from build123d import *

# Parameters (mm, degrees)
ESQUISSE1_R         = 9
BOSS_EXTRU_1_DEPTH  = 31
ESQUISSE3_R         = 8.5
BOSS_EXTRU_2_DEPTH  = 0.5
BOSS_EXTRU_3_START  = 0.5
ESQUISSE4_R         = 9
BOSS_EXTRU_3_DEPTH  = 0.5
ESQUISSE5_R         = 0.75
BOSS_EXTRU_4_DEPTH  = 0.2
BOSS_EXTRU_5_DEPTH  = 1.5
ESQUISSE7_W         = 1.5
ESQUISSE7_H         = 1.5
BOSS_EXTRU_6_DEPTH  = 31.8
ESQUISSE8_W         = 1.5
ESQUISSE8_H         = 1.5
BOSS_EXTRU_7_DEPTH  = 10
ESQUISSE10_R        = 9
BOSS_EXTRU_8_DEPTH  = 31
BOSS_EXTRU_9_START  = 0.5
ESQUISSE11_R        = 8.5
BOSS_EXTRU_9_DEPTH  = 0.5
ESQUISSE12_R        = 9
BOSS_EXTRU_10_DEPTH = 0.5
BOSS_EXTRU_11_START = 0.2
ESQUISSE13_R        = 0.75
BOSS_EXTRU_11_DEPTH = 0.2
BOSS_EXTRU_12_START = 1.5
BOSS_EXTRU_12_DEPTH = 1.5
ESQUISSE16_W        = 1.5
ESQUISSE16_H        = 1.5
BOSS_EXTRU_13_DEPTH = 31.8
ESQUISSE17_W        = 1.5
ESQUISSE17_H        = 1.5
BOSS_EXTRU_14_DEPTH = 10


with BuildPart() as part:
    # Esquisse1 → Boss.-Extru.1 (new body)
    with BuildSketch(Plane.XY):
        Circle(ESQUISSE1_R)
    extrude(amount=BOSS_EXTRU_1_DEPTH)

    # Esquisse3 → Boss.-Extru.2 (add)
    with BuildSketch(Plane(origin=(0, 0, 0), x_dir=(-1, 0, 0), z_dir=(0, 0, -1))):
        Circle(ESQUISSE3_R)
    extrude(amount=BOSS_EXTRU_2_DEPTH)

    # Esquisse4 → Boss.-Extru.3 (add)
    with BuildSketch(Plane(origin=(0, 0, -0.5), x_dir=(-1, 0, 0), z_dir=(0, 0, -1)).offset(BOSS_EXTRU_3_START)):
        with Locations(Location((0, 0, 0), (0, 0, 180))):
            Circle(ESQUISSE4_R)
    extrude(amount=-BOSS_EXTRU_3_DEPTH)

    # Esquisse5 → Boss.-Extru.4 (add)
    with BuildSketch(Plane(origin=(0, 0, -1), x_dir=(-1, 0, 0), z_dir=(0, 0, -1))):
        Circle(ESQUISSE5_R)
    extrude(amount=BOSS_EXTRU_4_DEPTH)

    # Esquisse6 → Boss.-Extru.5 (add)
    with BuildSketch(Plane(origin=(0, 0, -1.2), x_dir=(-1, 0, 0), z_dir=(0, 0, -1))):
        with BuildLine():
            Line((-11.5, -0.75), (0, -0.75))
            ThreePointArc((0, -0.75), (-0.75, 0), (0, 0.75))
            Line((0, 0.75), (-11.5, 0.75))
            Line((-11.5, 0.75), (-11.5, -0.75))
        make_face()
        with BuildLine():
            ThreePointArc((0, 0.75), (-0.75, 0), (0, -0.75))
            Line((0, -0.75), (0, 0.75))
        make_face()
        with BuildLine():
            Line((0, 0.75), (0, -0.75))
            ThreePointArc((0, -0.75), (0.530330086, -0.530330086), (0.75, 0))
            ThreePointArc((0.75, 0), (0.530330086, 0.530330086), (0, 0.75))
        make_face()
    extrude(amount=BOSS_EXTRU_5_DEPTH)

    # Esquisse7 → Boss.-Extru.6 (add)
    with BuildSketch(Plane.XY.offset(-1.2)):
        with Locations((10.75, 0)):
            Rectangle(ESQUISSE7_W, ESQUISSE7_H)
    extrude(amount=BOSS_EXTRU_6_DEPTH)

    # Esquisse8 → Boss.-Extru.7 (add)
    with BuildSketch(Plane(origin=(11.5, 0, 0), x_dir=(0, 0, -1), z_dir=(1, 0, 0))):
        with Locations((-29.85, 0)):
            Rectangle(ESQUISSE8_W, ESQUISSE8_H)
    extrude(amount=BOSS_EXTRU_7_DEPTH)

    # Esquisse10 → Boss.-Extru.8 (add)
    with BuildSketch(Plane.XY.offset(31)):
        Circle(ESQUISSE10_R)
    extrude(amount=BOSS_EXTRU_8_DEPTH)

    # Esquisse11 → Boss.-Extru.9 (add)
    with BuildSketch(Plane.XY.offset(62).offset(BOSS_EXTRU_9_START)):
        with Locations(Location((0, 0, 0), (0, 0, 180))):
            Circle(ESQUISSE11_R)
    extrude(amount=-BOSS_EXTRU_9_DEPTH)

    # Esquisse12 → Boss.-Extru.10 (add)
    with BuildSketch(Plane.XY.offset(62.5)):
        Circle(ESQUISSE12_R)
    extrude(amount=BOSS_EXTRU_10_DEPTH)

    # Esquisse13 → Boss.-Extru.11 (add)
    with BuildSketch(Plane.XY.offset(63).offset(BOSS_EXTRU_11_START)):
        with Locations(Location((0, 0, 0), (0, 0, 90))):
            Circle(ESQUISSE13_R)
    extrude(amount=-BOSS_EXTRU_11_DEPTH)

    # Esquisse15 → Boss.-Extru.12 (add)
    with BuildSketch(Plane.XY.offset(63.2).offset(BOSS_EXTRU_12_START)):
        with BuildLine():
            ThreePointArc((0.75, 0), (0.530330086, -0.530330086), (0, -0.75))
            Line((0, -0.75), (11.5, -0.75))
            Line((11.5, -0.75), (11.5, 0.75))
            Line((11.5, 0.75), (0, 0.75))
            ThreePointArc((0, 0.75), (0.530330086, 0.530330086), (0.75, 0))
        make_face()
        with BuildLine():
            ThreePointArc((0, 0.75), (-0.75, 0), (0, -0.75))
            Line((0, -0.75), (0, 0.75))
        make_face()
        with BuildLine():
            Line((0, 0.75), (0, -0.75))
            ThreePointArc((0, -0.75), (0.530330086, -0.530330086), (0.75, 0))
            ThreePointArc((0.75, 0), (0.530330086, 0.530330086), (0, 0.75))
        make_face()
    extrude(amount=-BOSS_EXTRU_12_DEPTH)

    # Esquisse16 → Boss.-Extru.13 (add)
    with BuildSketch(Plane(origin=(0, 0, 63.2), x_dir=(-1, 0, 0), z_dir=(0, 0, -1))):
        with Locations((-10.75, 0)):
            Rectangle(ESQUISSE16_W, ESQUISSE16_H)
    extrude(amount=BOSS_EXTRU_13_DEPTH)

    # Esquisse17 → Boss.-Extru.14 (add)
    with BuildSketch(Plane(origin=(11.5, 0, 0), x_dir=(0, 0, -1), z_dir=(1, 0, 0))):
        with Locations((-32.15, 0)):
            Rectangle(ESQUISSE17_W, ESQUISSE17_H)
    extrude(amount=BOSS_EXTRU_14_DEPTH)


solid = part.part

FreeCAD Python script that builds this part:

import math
import FreeCAD as App
import Part
import Sketcher
Q = App.Units.Quantity


def add_polygon(sketch, points):
    """Adds a closed chain of lines whose ends are joined by coincident constraints."""
    first, n = sketch.GeometryCount, len(points)
    for a, b in zip(points, points[1:] + points[:1]):
        sketch.addGeometry(Part.LineSegment(App.Vector(*a, 0), App.Vector(*b, 0)), False)
    for i in range(n):
        sketch.addConstraint(Sketcher.Constraint("Coincident", first + i, 2, first + (i + 1) % n, 1))

doc = App.newDocument("Part")
body = doc.addObject("PartDesign::Body", "Body")

# Sketch on XY plane
sketch1 = body.newObject("Sketcher::SketchObject", "Sketch")
sketch1.AttachmentSupport = (doc.getObject("XY_Plane"), [""])
sketch1.MapMode = "FlatFace"
sketch1.addGeometry(Part.Circle(App.Vector(0, 0, 0), App.Vector(0, 0, 1), 9), False)
sketch1.addConstraint([
    Sketcher.Constraint("Coincident", 0, 3, -1, 1),
    Sketcher.Constraint("Diameter", 0, Q("18 mm")),
])
pad1 = body.newObject("PartDesign::Pad", "Pad")
pad1.Profile = sketch1
pad1.Length = 31

# Sketch on XY plane
sketch2 = body.newObject("Sketcher::SketchObject", "Sketch001")
sketch2.AttachmentSupport = (doc.getObject("XY_Plane"), [""])
sketch2.MapMode = "FlatFace"
sketch2.addGeometry(Part.Circle(App.Vector(0, 0, 0), App.Vector(0, 0, 1), 8), False)
sketch2.addConstraint([
    Sketcher.Constraint("Coincident", 0, 3, -1, 1),
    Sketcher.Constraint("Diameter", 0, Q("17 mm")),
])
pad2 = body.newObject("PartDesign::Pad", "Pad001")
pad2.Profile = sketch2
pad2.Length = 0.5
pad2.Reversed = True

# Sketch on XY plane
sketch3 = body.newObject("Sketcher::SketchObject", "Sketch002")
sketch3.AttachmentSupport = (doc.getObject("XY_Plane"), [""])
sketch3.MapMode = "FlatFace"
sketch3.AttachmentOffset = App.Placement(App.Vector(0, 0, -1), App.Rotation())
sketch3.addGeometry(Part.Circle(App.Vector(0, 0, 0), App.Vector(0, 0, 1), 9), False)
sketch3.addConstraint([
    Sketcher.Constraint("Coincident", 0, 3, -1, 1),
    Sketcher.Constraint("Diameter", 0, Q("18 mm")),
])
pad3 = body.newObject("PartDesign::Pad", "Pad002")
pad3.Profile = sketch3
pad3.Length = 0.5

# Sketch on XY plane
sketch4 = body.newObject("Sketcher::SketchObject", "Sketch003")
sketch4.AttachmentSupport = (doc.getObject("XY_Plane"), [""])
sketch4.MapMode = "FlatFace"
sketch4.AttachmentOffset = App.Placement(App.Vector(0, 0, -1), App.Rotation())
sketch4.addGeometry(Part.Circle(App.Vector(0, 0, 0), App.Vector(0, 0, 1), 0.8), False)
sketch4.addConstraint([
    Sketcher.Constraint("Coincident", 0, 3, -1, 1),
    Sketcher.Constraint("Diameter", 0, Q("1.5 mm")),
])
pad4 = body.newObject("PartDesign::Pad", "Pad003")
pad4.Profile = sketch4
pad4.Length = 0.2
pad4.Reversed = True

# Sketch on XY plane
sketch5 = body.newObject("Sketcher::SketchObject", "Sketch004")
sketch5.AttachmentSupport = (doc.getObject("XY_Plane"), [""])
sketch5.MapMode = "FlatFace"
sketch5.AttachmentOffset = App.Placement(App.Vector(0, 0, -1.2), App.Rotation())
sketch5.addGeometry([
    Part.LineSegment(App.Vector(0, 0.8, 0), App.Vector(11.5, 0.8, 0)),  # 0
    Part.LineSegment(App.Vector(11.5, 0.8, 0), App.Vector(11.5, -0.8, 0)),  # 1
    Part.LineSegment(App.Vector(11.5, -0.8, 0), App.Vector(0, -0.8, 0)),  # 2
    Part.ArcOfCircle(Part.Circle(App.Vector(0, 0, 0), App.Vector(0, 0, 1), 0.8), math.radians(180), math.radians(270)),  # 3
    Part.ArcOfCircle(Part.Circle(App.Vector(0, 0, 0), App.Vector(0, 0, 1), 0.8), math.radians(90), math.radians(180)),  # 4
], False)
sketch5.addConstraint([
    Sketcher.Constraint("Coincident", 0, 2, 1, 1),
    Sketcher.Constraint("Coincident", 1, 2, 2, 1),
    Sketcher.Constraint("Tangent", 2, 2, 3, 2),
    Sketcher.Constraint("Tangent", 3, 1, 4, 2),
    Sketcher.Constraint("Tangent", 4, 1, 0, 1),
    Sketcher.Constraint("Horizontal", 0),
    Sketcher.Constraint("Vertical", 1),
    Sketcher.Constraint("Horizontal", 2),
    Sketcher.Constraint("Coincident", 3, 3, -1, 1),
    Sketcher.Constraint("Equal", 3, 4),
    Sketcher.Constraint("PointOnObject", 3, 1, -1),
    Sketcher.Constraint("Radius", 3, Q("0.75 mm")),
    Sketcher.Constraint("DistanceX", 0, 1, 0, 2, Q("11.5 mm")),
])
pad5 = body.newObject("PartDesign::Pad", "Pad004")
pad5.Profile = sketch5
pad5.Length = 1.5
pad5.Reversed = True

# Sketch on XY plane
sketch6 = body.newObject("Sketcher::SketchObject", "Sketch005")
sketch6.AttachmentSupport = (doc.getObject("XY_Plane"), [""])
sketch6.MapMode = "FlatFace"
sketch6.AttachmentOffset = App.Placement(App.Vector(0, 0, -1.2), App.Rotation())
add_polygon(sketch6, [(10, 0.8), (10, -0.8), (11.5, -0.8), (11.5, 0.8)])  # lines 0-3
sketch6.addConstraint([
    Sketcher.Constraint("Vertical", 0),
    Sketcher.Constraint("Horizontal", 1),
    Sketcher.Constraint("Vertical", 2),
    Sketcher.Constraint("Horizontal", 3),
    Sketcher.Constraint("Equal", 3, 0),
    Sketcher.Constraint("DistanceX", 1, 1, 1, 2, Q("1.5 mm")),
    Sketcher.Constraint("DistanceX", -1, 1, 0, 2, Q("10 mm")),
    Sketcher.Constraint("DistanceY", 0, 2, -1, 1, Q("0.75 mm")),
])
pad6 = body.newObject("PartDesign::Pad", "Pad005")
pad6.Profile = sketch6
pad6.Length = 31.8

# Sketch on YZ plane
sketch7 = body.newObject("Sketcher::SketchObject", "Sketch006")
sketch7.AttachmentSupport = (doc.getObject("YZ_Plane"), [""])
sketch7.MapMode = "FlatFace"
sketch7.AttachmentOffset = App.Placement(App.Vector(0, 0, 11.5), App.Rotation())
add_polygon(sketch7, [(0.8, 30.6), (-0.8, 30.6), (-0.8, 29.1), (0.8, 29.1)])  # lines 0-3
sketch7.addConstraint([
    Sketcher.Constraint("Horizontal", 0),
    Sketcher.Constraint("Vertical", 1),
    Sketcher.Constraint("Horizontal", 2),
    Sketcher.Constraint("Vertical", 3),
    Sketcher.Constraint("Equal", 2, 1),
    Sketcher.Constraint("DistanceX", 0, 2, 0, 1, Q("1.5 mm")),
    Sketcher.Constraint("DistanceY", -1, 1, 0, 2, Q("30.6 mm")),
    Sketcher.Constraint("DistanceX", 0, 2, -1, 1, Q("0.75 mm")),
])
pad7 = body.newObject("PartDesign::Pad", "Pad006")
pad7.Profile = sketch7
pad7.Length = 10

# Sketch on XY plane
sketch8 = body.newObject("Sketcher::SketchObject", "Sketch007")
sketch8.AttachmentSupport = (doc.getObject("XY_Plane"), [""])
sketch8.MapMode = "FlatFace"
sketch8.AttachmentOffset = App.Placement(App.Vector(0, 0, 31), App.Rotation())
sketch8.addGeometry(Part.Circle(App.Vector(0, 0, 0), App.Vector(0, 0, 1), 9), False)
sketch8.addConstraint([
    Sketcher.Constraint("Coincident", 0, 3, -1, 1),
    Sketcher.Constraint("Diameter", 0, Q("18 mm")),
])
pad8 = body.newObject("PartDesign::Pad", "Pad007")
pad8.Profile = sketch8
pad8.Length = 31

# Sketch on XY plane
sketch9 = body.newObject("Sketcher::SketchObject", "Sketch008")
sketch9.AttachmentSupport = (doc.getObject("XY_Plane"), [""])
sketch9.MapMode = "FlatFace"
sketch9.AttachmentOffset = App.Placement(App.Vector(0, 0, 62.5), App.Rotation())
sketch9.addGeometry(Part.Circle(App.Vector(0, 0, 0), App.Vector(0, 0, 1), 8), False)
sketch9.addConstraint([
    Sketcher.Constraint("Coincident", 0, 3, -1, 1),
    Sketcher.Constraint("Diameter", 0, Q("17 mm")),
])
pad9 = body.newObject("PartDesign::Pad", "Pad008")
pad9.Profile = sketch9
pad9.Length = 0.5
pad9.Reversed = True

# Sketch on XY plane
sketch10 = body.newObject("Sketcher::SketchObject", "Sketch009")
sketch10.AttachmentSupport = (doc.getObject("XY_Plane"), [""])
sketch10.MapMode = "FlatFace"
sketch10.AttachmentOffset = App.Placement(App.Vector(0, 0, 62.5), App.Rotation())
sketch10.addGeometry(Part.Circle(App.Vector(0, 0, 0), App.Vector(0, 0, 1), 9), False)
sketch10.addConstraint([
    Sketcher.Constraint("Coincident", 0, 3, -1, 1),
    Sketcher.Constraint("Diameter", 0, Q("18 mm")),
])
pad10 = body.newObject("PartDesign::Pad", "Pad009")
pad10.Profile = sketch10
pad10.Length = 0.5

# Sketch on XY plane
sketch11 = body.newObject("Sketcher::SketchObject", "Sketch010")
sketch11.AttachmentSupport = (doc.getObject("XY_Plane"), [""])
sketch11.MapMode = "FlatFace"
sketch11.AttachmentOffset = App.Placement(App.Vector(0, 0, 63.2), App.Rotation())
sketch11.addGeometry(Part.Circle(App.Vector(0, 0, 0), App.Vector(0, 0, 1), 0.8), False)
sketch11.addConstraint([
    Sketcher.Constraint("Coincident", 0, 3, -1, 1),
    Sketcher.Constraint("Diameter", 0, Q("1.5 mm")),
])
pad11 = body.newObject("PartDesign::Pad", "Pad010")
pad11.Profile = sketch11
pad11.Length = 0.2
pad11.Reversed = True

# Sketch on XY plane
sketch12 = body.newObject("Sketcher::SketchObject", "Sketch011")
sketch12.AttachmentSupport = (doc.getObject("XY_Plane"), [""])
sketch12.MapMode = "FlatFace"
sketch12.AttachmentOffset = App.Placement(App.Vector(0, 0, 64.7), App.Rotation())
sketch12.addGeometry([
    Part.LineSegment(App.Vector(11.5, -0.8, 0), App.Vector(11.5, 0.8, 0)),
    Part.LineSegment(App.Vector(11.5, 0.8, 0), App.Vector(0, 0.8, 0)),
    Part.ArcOfCircle(Part.Circle(App.Vector(0, 0, 0), App.Vector(0, 0, 1), 0.8), math.radians(90), math.radians(270)),
    Part.LineSegment(App.Vector(0, -0.8, 0), App.Vector(11.5, -0.8, 0)),
], False)
sketch12.addConstraint([
    Sketcher.Constraint("Coincident", 0, 2, 1, 1),
    Sketcher.Constraint("Tangent", 1, 2, 2, 1),
    Sketcher.Constraint("Tangent", 2, 2, 3, 1),
    Sketcher.Constraint("Coincident", 3, 2, 0, 1),
    Sketcher.Constraint("Vertical", 0),
    Sketcher.Constraint("Horizontal", 1),
    Sketcher.Constraint("Horizontal", 3),
    Sketcher.Constraint("Coincident", 2, 3, -1, 1),
    Sketcher.Constraint("Radius", 2, Q("0.75 mm")),
    Sketcher.Constraint("DistanceX", 1, 2, 1, 1, Q("11.5 mm")),
])
pad12 = body.newObject("PartDesign::Pad", "Pad011")
pad12.Profile = sketch12
pad12.Length = 1.5
pad12.Reversed = True

# Sketch on XY plane
sketch13 = body.newObject("Sketcher::SketchObject", "Sketch012")
sketch13.AttachmentSupport = (doc.getObject("XY_Plane"), [""])
sketch13.MapMode = "FlatFace"
sketch13.AttachmentOffset = App.Placement(App.Vector(0, 0, 63.2), App.Rotation())
add_polygon(sketch13, [(11.5, 0.8), (11.5, -0.8), (10, -0.8), (10, 0.8)])  # lines 0-3
sketch13.addConstraint([
    Sketcher.Constraint("Vertical", 0),
    Sketcher.Constraint("Horizontal", 1),
    Sketcher.Constraint("Vertical", 2),
    Sketcher.Constraint("Horizontal", 3),
    Sketcher.Constraint("Equal", 3, 0),
    Sketcher.Constraint("DistanceX", 1, 2, 1, 1, Q("1.5 mm")),
    Sketcher.Constraint("DistanceX", -1, 1, 1, 2, Q("10 mm")),
    Sketcher.Constraint("DistanceY", 0, 2, -1, 1, Q("0.75 mm")),
])
pad13 = body.newObject("PartDesign::Pad", "Pad012")
pad13.Profile = sketch13
pad13.Length = 31.8
pad13.Reversed = True

# Sketch on YZ plane
sketch14 = body.newObject("Sketcher::SketchObject", "Sketch013")
sketch14.AttachmentSupport = (doc.getObject("YZ_Plane"), [""])
sketch14.MapMode = "FlatFace"
sketch14.AttachmentOffset = App.Placement(App.Vector(0, 0, 11.5), App.Rotation())
add_polygon(sketch14, [(0.8, 32.9), (-0.8, 32.9), (-0.8, 31.4), (0.8, 31.4)])  # lines 0-3
sketch14.addConstraint([
    Sketcher.Constraint("Horizontal", 0),
    Sketcher.Constraint("Vertical", 1),
    Sketcher.Constraint("Horizontal", 2),
    Sketcher.Constraint("Vertical", 3),
    Sketcher.Constraint("Equal", 2, 1),
    Sketcher.Constraint("DistanceX", 0, 2, 0, 1, Q("1.5 mm")),
    Sketcher.Constraint("DistanceY", -1, 1, 0, 2, Q("32.9 mm")),
    Sketcher.Constraint("DistanceX", 0, 2, -1, 1, Q("0.75 mm")),
])
pad14 = body.newObject("PartDesign::Pad", "Pad013")
pad14.Profile = sketch14
pad14.Length = 10

doc.recompute()
